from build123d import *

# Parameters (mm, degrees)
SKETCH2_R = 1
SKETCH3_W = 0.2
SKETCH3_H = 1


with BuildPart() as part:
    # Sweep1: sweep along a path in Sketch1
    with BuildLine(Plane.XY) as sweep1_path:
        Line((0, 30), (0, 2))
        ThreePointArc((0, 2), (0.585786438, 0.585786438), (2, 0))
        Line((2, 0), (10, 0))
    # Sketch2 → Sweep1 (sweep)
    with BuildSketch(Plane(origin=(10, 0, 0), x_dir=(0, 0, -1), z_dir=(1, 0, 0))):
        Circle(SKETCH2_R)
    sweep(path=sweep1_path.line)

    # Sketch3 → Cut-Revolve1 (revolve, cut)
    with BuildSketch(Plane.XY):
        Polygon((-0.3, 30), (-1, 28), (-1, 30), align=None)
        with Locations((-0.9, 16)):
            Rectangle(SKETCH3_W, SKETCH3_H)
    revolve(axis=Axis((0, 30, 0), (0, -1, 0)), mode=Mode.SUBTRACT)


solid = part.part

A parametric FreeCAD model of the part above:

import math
import FreeCAD as App
import Part
import Sketcher

V = App.Vector
Q = App.Units.Quantity


def add_polygon(sketch, points):
    """Adds a closed chain of lines whose ends are joined by coincident constraints."""
    first, n = sketch.GeometryCount, len(points)
    for a, b in zip(points, points[1:] + points[:1]):
        sketch.addGeometry(Part.LineSegment(App.Vector(*a, 0), App.Vector(*b, 0)), False)
    for i in range(n):
        sketch.addConstraint(Sketcher.Constraint("Coincident", first + i, 2, first + (i + 1) % n, 1))

doc = App.newDocument("Part")
body = doc.addObject("PartDesign::Body", "Body")

# Sketch on YZ plane
sketch1 = doc.addObject("Sketcher::SketchObject", "Sketch")
body.addObject(sketch1)
sketch1.AttachmentSupport = (doc.YZ_Plane, [""])
sketch1.MapMode = "FlatFace"
sketch1.AttachmentOffset = App.Placement(V(0, 0, 10), App.Rotation())
sketch1.addGeometry(Part.Circle(V(0, 0, 0), V(0, 0, 1), 1), False)
sketch1.addConstraint([
    Sketcher.Constraint("Coincident", 0, 3, -1, 1),
    Sketcher.Constraint("Diameter", 0, Q("2 mm")),
])

# Sketch on XY plane
sketch2 = doc.addObject("Sketcher::SketchObject", "Sketch001")
body.addObject(sketch2)
sketch2.AttachmentSupport = (doc.XY_Plane, [""])
sketch2.MapMode = "FlatFace"
sketch2.addGeometry([
    Part.LineSegment(V(0, 30, 0), V(0, 2, 0)),
    Part.ArcOfCircle(Part.Circle(V(2, 2, 0), V(0, 0, 1), 2), math.radians(-180), math.radians(-90)),
    Part.LineSegment(V(2, 0, 0), V(10, 0, 0)),
], False)
sketch2.addConstraint([
    Sketcher.Constraint("Tangent", 0, 2, 1, 1),
    Sketcher.Constraint("Tangent", 1, 2, 2, 1),
    Sketcher.Constraint("Vertical", 0),
    Sketcher.Constraint("Horizontal", 2),
    Sketcher.Constraint("PointOnObject", 0, 1, -2),
    Sketcher.Constraint("PointOnObject", 1, 2, -1),
    Sketcher.Constraint("Radius", 1, Q("2 mm")),
    Sketcher.Constraint("DistanceX", 2, 1, 2, 2, Q("8 mm")),
    Sketcher.Constraint("DistanceY", 0, 2, 0, 1, Q("28 mm")),
])
doc.recompute()

additivepipe = doc.addObject("PartDesign::AdditivePipe", "AdditivePipe")
body.addObject(additivepipe)
additivepipe.Profile = sketch1
additivepipe.Spine = (sketch2, ["Edge1", "Edge2", "Edge3"])

# Sketch on XY plane
sketch3 = doc.addObject("Sketcher::SketchObject", "Sketch002")
body.addObject(sketch3)
sketch3.AttachmentSupport = (doc.XY_Plane, [""])
sketch3.MapMode = "FlatFace"
add_polygon(sketch3, [(-1, 28), (-0.3, 30), (-1, 30)])  # lines 0-2
add_polygon(sketch3, [(-1, 16.5), (-1, 15.5), (-0.8, 15.5), (-0.8, 16.5)])  # lines 3-6
sketch3.addConstraint([
    Sketcher.Constraint("Horizontal", 1),
    Sketcher.Constraint("Vertical", 2),
    Sketcher.Constraint("Vertical", 3),
    Sketcher.Constraint("Horizontal", 4),
    Sketcher.Constraint("Vertical", 5),
    Sketcher.Constraint("Horizontal", 6),
    Sketcher.Constraint("Vertical", 2, 2, 3, 2),
    Sketcher.Constraint("DistanceY", 2, 2, 2, 1, Q("2 mm")),
    Sketcher.Constraint("DistanceY", 3, 2, 3, 1, Q("1 mm")),
    Sketcher.Constraint("DistanceX", 1, 2, 1, 1, Q("0.7 mm")),
    Sketcher.Constraint("DistanceX", 4, 1, 4, 2, Q("0.2 mm")),
    Sketcher.Constraint("DistanceY", -1, 1, 0, 2, Q("30 mm")),
    Sketcher.Constraint("DistanceX", 1, 2, -1, 1, Q("1 mm")),
    Sketcher.Constraint("DistanceY", -1, 1, 3, 2, Q("15.5 mm")),
])
groove = doc.addObject("PartDesign::Groove", "Groove")
body.addObject(groove)
groove.Profile = sketch3
groove.ReferenceAxis = (sketch3, ["V_Axis"])
groove.Angle = 360

doc.recompute()
